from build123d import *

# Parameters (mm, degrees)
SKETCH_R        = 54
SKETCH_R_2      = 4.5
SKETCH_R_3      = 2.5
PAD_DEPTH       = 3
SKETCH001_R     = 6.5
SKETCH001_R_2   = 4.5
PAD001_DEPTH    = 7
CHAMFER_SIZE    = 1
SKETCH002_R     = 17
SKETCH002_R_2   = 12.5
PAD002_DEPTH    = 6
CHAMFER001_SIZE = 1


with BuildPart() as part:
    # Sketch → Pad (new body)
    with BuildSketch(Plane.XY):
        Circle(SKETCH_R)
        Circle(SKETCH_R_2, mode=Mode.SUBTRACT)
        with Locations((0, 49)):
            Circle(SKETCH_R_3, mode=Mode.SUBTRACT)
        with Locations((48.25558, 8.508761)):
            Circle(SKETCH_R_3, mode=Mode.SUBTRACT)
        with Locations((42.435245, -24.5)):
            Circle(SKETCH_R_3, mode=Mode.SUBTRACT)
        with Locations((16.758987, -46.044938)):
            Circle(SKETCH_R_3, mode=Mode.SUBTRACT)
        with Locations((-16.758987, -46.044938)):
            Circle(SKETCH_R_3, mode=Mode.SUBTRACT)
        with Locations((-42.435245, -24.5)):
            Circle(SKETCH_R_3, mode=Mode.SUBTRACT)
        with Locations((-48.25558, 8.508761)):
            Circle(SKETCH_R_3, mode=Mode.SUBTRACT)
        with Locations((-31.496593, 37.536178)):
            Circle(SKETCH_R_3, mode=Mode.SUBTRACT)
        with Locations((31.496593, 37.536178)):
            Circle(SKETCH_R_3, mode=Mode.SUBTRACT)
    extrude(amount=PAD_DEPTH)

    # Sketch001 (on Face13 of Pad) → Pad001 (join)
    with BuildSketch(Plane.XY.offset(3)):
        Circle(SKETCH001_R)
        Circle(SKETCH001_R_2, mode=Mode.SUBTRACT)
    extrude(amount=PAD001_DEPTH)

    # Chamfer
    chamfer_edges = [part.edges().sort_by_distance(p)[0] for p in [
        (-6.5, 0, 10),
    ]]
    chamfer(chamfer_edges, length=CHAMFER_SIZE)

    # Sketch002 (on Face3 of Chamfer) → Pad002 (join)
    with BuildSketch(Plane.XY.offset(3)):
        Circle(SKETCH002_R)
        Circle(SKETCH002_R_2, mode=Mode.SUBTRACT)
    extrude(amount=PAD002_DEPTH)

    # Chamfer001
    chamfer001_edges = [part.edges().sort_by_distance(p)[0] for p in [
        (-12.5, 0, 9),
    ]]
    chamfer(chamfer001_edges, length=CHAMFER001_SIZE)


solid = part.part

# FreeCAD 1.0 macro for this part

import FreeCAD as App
import Part
import Sketcher
from FreeCAD import Vector
Q = App.Units.Quantity


def edges_at(feature, points):
    """Names of the edges that pass closest to the given points."""
    edges = feature.Shape.Edges
    near = lambda p: min(range(len(edges)), key=lambda i: edges[i].distToShape(Part.Vertex(*p))[0])
    return sorted({f"Edge{near(p) + 1}" for p in points})

doc = App.newDocument("Part")
body = doc.addObject("PartDesign::Body", "Body")

sketch1 = body.newObject("Sketcher::SketchObject", "Sketch")
sketch1.AttachmentSupport = (doc.getObject("XY_Plane"), [""])
sketch1.MapMode = "FlatFace"
sketch1.addGeometry(Part.Circle(Vector(0, 0, 0), Vector(0, 0, 1), 54), False)
sketch1.addGeometry(Part.Circle(Vector(-42.4, -24.5, 0), Vector(0, 0, 1), 2.5), False)
sketch1.addGeometry(Part.Circle(Vector(-16.8, -46, 0), Vector(0, 0, 1), 2.5), False)
sketch1.addGeometry(Part.Circle(Vector(16.8, -46, 0), Vector(0, 0, 1), 2.5), False)
sketch1.addGeometry(Part.Circle(Vector(42.4, -24.5, 0), Vector(0, 0, 1), 2.5), False)
sketch1.addGeometry(Part.Circle(Vector(0, 0, 0), Vector(0, 0, 1), 4.5), False)
sketch1.addGeometry(Part.Circle(Vector(-48.3, 8.5, 0), Vector(0, 0, 1), 2.5), False)
sketch1.addGeometry(Part.Circle(Vector(-31.5, 37.5, 0), Vector(0, 0, 1), 2.5), False)
sketch1.addGeometry(Part.Circle(Vector(48.3, 8.5, 0), Vector(0, 0, 1), 2.5), False)
sketch1.addGeometry(Part.Circle(Vector(0, 49, 0), Vector(0, 0, 1), 2.5), False)
sketch1.addGeometry(Part.Circle(Vector(31.5, 37.5, 0), Vector(0, 0, 1), 2.5), False)
sketch1.addConstraint(Sketcher.Constraint("Coincident", 0, 3, -1, 1))
sketch1.addConstraint(Sketcher.Constraint("Coincident", 5, 3, -1, 1))
sketch1.addConstraint(Sketcher.Constraint("Equal", 1, 2))
sketch1.addConstraint(Sketcher.Constraint("Equal", 2, 3))
sketch1.addConstraint(Sketcher.Constraint("Equal", 3, 4))
sketch1.addConstraint(Sketcher.Constraint("Equal", 4, 6))
sketch1.addConstraint(Sketcher.Constraint("Equal", 6, 7))
sketch1.addConstraint(Sketcher.Constraint("Equal", 7, 8))
sketch1.addConstraint(Sketcher.Constraint("Equal", 8, 9))
sketch1.addConstraint(Sketcher.Constraint("Equal", 9, 10))
sketch1.addConstraint(Sketcher.Constraint("Symmetric", 2, 3, 3, 3, -2))
sketch1.addConstraint(Sketcher.Constraint("Symmetric", 1, 3, 4, 3, -2))
sketch1.addConstraint(Sketcher.Constraint("Symmetric", 6, 3, 8, 3, -2))
sketch1.addConstraint(Sketcher.Constraint("Symmetric", 7, 3, 10, 3, -2))
sketch1.addConstraint(Sketcher.Constraint("PointOnObject", 9, 3, -2))
sketch1.addConstraint(Sketcher.Constraint("Diameter", 0, Q("108 mm")))
sketch1.addConstraint(Sketcher.Constraint("Diameter", 1, Q("5 mm")))
sketch1.addConstraint(Sketcher.Constraint("Diameter", 5, Q("9 mm")))
sketch1.addConstraint(Sketcher.Constraint("DistanceY", -1, 1, 9, 3, Q("49 mm")))
sketch1.addConstraint(Sketcher.Constraint("DistanceY", 1, 3, -1, 1, Q("24.5 mm")))
sketch1.addConstraint(Sketcher.Constraint("DistanceY", 2, 3, 6, 3, Q("54.553699 mm")))
sketch1.addConstraint(Sketcher.Constraint("DistanceY", 2, 3, -1, 1, Q("46.044938 mm")))
sketch1.addConstraint(Sketcher.Constraint("DistanceX", 6, 3, -1, 1, Q("48.25558 mm")))
sketch1.addConstraint(Sketcher.Constraint("DistanceX", 1, 3, 2, 3, Q("25.676258 mm")))
sketch1.addConstraint(Sketcher.Constraint("DistanceX", 1, 3, 4, 3, Q("84.87049 mm")))
sketch1.addConstraint(Sketcher.Constraint("DistanceX", 7, 3, -1, 1, Q("31.496593 mm")))
sketch1.addConstraint(Sketcher.Constraint("DistanceY", -1, 1, 7, 3, Q("37.536178 mm")))
pad1 = body.newObject("PartDesign::Pad", "Pad")
pad1.Profile = sketch1
pad1.Length = 3

sketch2 = body.newObject("Sketcher::SketchObject", "Sketch001")
sketch2.AttachmentSupport = (doc.getObject("XY_Plane"), [""])
sketch2.MapMode = "FlatFace"
sketch2.AttachmentOffset = App.Placement(Vector(0, 0, 3), App.Rotation())
sketch2.addGeometry(Part.Circle(Vector(0, 0, 0), Vector(0, 0, 1), 6.5), False)
sketch2.addGeometry(Part.Circle(Vector(0, 0, 0), Vector(0, 0, 1), 4.5), False)
sketch2.addConstraint(Sketcher.Constraint("Coincident", 0, 3, -1, 1))
sketch2.addConstraint(Sketcher.Constraint("Coincident", 1, 3, -1, 1))
sketch2.addConstraint(Sketcher.Constraint("Diameter", 0, Q("13 mm")))
sketch2.addConstraint(Sketcher.Constraint("Diameter", 1, Q("9 mm")))
pad2 = body.newObject("PartDesign::Pad", "Pad001")
pad2.Profile = sketch2
pad2.Length = 7
doc.recompute()

chamfer = body.newObject("PartDesign::Chamfer", "Chamfer")
chamfer.Base = (pad2, edges_at(pad2, [(-6.5, 0, 10)]))
chamfer.Size = 1

sketch3 = body.newObject("Sketcher::SketchObject", "Sketch002")
sketch3.AttachmentSupport = (doc.getObject("XY_Plane"), [""])
sketch3.MapMode = "FlatFace"
sketch3.AttachmentOffset = App.Placement(Vector(0, 0, 3), App.Rotation())
sketch3.addGeometry(Part.Circle(Vector(0, 0, 0), Vector(0, 0, 1), 17), False)
sketch3.addGeometry(Part.Circle(Vector(0, 0, 0), Vector(0, 0, 1), 12), False)
sketch3.addConstraint(Sketcher.Constraint("Coincident", 0, 3, -1, 1))
sketch3.addConstraint(Sketcher.Constraint("Coincident", 1, 3, -1, 1))
sketch3.addConstraint(Sketcher.Constraint("Diameter", 0, Q("34 mm")))
sketch3.addConstraint(Sketcher.Constraint("Diameter", 1, Q("25 mm")))
pad3 = body.newObject("PartDesign::Pad", "Pad002")
pad3.Profile = sketch3
pad3.Length = 6
doc.recompute()

chamfer2 = body.newObject("PartDesign::Chamfer", "Chamfer001")
chamfer2.Base = (pad3, edges_at(pad3, [(-12.5, 0, 9)]))
chamfer2.Size = 1

doc.recompute()
